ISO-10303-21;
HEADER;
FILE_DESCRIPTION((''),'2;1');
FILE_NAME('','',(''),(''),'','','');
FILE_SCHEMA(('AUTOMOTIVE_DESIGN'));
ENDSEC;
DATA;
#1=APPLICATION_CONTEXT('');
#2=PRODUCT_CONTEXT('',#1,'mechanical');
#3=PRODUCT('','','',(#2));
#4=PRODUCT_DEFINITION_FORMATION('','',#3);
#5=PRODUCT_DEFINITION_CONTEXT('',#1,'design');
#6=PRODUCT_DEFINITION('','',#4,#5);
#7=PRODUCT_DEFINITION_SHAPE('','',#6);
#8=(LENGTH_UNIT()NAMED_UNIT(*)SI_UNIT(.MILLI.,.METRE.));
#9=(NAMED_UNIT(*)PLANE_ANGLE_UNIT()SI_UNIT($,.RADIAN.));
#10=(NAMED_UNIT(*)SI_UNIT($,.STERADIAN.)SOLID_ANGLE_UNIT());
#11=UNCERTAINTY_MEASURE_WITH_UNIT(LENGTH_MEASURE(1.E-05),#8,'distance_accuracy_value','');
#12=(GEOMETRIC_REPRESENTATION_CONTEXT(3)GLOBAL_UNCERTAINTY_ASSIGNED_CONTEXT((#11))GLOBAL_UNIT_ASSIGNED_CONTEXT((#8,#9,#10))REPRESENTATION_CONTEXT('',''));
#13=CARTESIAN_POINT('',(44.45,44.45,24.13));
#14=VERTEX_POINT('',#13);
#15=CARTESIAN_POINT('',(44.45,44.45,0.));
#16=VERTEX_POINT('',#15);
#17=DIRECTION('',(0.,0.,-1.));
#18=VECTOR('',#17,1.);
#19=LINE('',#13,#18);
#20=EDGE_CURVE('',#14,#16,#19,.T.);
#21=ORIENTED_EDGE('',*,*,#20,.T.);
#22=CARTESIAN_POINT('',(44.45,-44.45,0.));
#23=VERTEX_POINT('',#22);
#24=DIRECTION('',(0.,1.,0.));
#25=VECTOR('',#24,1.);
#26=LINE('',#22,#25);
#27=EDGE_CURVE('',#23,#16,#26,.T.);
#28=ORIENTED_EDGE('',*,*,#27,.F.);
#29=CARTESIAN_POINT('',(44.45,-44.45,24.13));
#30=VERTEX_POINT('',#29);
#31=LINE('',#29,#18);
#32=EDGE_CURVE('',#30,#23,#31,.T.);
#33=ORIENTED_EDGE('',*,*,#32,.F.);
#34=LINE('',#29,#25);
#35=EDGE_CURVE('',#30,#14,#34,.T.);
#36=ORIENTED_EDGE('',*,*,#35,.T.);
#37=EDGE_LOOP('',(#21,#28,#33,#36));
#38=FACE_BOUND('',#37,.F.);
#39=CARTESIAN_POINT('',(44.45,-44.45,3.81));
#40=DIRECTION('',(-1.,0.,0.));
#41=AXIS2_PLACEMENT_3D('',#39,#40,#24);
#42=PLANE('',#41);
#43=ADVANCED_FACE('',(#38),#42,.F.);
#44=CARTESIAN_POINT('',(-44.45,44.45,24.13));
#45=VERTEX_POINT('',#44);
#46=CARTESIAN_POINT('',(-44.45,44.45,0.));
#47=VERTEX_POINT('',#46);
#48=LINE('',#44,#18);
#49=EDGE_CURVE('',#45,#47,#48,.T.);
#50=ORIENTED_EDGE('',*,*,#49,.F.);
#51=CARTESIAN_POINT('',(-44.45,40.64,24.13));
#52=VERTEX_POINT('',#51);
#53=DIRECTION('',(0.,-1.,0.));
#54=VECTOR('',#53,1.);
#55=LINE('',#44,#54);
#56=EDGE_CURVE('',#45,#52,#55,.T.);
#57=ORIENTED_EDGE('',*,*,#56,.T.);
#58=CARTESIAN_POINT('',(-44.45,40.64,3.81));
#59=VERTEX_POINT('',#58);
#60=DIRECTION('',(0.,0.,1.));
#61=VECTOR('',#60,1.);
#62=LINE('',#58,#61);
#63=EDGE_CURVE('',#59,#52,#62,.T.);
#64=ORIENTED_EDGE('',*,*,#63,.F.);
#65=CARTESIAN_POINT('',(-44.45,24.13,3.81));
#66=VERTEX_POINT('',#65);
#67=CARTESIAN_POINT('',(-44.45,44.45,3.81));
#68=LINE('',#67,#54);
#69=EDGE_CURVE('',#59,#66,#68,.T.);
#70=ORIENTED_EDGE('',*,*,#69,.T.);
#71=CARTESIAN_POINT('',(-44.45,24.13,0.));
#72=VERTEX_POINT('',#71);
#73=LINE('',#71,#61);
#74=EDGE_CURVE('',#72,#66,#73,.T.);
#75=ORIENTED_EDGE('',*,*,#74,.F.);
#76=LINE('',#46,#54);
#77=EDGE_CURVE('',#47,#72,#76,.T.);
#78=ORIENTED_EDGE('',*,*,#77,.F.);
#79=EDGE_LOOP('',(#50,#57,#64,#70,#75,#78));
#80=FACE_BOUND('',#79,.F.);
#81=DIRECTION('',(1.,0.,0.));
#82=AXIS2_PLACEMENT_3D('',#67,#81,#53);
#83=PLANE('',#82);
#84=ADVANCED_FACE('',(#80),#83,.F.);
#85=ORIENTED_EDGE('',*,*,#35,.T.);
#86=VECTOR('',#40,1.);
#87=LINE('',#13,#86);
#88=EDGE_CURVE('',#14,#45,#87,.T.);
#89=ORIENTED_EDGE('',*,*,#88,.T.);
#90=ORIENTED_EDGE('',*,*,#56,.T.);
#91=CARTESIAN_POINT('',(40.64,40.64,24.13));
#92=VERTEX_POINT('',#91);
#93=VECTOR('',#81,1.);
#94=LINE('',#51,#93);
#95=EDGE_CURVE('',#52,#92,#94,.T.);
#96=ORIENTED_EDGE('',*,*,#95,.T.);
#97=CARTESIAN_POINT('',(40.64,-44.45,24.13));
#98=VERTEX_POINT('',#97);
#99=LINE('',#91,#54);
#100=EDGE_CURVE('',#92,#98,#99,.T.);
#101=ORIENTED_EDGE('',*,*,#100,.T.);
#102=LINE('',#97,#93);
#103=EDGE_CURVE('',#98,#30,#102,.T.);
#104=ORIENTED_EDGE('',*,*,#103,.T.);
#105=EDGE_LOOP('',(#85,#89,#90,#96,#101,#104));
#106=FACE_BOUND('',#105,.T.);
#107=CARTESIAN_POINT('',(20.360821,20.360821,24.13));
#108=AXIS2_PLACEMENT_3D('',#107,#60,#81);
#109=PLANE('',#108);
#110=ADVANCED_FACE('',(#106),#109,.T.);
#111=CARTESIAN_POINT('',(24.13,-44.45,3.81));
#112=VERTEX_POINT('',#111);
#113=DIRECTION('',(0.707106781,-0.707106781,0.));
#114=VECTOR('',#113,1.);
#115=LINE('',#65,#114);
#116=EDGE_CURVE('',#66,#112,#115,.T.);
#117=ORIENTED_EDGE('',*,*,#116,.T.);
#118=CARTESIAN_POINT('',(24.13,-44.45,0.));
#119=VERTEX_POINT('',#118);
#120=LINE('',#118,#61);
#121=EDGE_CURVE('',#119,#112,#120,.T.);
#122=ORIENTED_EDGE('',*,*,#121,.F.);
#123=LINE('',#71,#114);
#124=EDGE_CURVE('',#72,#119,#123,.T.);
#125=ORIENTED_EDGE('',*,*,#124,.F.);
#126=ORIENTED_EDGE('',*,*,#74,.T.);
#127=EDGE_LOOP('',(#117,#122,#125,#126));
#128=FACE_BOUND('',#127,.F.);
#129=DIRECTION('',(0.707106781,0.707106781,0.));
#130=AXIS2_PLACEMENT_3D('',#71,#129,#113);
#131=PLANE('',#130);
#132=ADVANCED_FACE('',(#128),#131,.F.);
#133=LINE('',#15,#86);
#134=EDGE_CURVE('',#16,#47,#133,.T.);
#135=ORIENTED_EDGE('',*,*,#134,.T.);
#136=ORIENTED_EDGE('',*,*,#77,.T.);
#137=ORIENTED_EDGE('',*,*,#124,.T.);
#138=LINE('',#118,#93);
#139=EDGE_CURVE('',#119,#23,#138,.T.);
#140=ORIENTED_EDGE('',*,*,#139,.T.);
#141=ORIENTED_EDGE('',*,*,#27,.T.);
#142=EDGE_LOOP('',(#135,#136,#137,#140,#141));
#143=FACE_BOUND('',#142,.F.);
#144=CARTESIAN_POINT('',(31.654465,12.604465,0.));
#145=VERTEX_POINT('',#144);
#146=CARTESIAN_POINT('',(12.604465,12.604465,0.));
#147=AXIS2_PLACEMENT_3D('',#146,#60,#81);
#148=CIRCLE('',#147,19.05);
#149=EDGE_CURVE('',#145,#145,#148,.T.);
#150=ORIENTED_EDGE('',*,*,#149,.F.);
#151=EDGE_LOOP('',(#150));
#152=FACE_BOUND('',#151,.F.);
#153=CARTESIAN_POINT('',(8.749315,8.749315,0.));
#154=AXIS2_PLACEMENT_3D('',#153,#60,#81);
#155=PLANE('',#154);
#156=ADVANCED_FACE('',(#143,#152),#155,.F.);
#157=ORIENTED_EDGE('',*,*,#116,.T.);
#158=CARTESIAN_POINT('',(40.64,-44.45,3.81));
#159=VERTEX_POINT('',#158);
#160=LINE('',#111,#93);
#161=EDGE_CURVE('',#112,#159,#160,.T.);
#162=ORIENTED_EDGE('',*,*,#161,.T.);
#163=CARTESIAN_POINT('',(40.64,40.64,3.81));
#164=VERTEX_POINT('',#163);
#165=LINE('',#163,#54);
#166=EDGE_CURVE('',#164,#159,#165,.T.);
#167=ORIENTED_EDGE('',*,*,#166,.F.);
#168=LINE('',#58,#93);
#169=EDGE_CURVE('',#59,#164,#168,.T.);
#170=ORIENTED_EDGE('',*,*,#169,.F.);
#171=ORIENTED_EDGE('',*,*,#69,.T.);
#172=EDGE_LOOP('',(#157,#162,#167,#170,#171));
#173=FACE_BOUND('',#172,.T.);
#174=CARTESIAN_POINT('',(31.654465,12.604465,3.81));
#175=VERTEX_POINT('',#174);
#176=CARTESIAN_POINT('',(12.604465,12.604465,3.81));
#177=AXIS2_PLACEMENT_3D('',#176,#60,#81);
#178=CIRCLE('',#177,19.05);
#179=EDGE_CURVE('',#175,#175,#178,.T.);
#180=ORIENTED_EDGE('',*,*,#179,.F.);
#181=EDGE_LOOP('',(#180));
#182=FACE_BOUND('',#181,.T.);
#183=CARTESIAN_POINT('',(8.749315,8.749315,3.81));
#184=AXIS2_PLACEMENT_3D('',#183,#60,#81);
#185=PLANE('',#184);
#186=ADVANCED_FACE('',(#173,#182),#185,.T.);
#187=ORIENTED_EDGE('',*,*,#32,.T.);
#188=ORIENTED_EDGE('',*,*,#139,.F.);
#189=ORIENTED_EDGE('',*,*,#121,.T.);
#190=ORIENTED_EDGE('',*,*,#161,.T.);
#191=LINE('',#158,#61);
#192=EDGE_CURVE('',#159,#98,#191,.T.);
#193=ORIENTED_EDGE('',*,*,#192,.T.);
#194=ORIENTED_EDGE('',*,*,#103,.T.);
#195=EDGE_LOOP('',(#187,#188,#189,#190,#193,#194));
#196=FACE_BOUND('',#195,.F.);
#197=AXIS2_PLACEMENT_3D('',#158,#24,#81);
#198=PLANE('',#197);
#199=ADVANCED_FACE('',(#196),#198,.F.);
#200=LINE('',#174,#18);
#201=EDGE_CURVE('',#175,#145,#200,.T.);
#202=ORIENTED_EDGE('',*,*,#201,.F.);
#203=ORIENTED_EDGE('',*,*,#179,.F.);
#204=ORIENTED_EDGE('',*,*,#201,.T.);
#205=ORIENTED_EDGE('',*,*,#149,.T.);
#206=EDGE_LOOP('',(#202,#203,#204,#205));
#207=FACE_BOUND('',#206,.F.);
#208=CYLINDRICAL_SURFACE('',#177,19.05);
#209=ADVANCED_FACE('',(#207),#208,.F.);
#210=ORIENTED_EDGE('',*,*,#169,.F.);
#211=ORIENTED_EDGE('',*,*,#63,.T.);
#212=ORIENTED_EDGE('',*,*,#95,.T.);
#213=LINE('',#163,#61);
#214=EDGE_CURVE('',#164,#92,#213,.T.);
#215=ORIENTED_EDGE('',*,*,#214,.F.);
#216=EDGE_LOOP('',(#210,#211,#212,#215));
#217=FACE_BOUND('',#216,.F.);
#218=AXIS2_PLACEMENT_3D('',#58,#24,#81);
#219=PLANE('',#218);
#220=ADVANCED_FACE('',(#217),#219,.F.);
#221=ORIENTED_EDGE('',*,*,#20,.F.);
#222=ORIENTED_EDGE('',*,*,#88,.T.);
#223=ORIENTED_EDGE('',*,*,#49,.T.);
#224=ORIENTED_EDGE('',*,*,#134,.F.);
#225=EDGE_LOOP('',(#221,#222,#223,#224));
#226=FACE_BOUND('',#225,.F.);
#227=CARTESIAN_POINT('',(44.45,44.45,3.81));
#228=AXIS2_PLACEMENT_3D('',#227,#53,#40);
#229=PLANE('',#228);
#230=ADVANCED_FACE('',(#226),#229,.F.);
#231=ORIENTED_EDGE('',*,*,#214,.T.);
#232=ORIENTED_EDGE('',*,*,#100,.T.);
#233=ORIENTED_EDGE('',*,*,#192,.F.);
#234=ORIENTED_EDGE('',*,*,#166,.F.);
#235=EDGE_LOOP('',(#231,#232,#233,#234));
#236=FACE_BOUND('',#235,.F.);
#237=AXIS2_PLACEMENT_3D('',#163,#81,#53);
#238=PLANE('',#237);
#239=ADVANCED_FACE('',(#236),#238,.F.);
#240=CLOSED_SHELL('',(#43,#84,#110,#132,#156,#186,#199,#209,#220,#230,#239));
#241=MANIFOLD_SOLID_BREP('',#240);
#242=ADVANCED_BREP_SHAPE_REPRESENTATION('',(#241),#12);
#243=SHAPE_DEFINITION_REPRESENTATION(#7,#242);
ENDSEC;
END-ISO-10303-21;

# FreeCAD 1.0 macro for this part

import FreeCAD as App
import Part
import Sketcher

V = App.Vector
Q = App.Units.Quantity

doc = App.newDocument("Part")
body = doc.addObject("PartDesign::Body", "Body")

sketch1 = body.newObject("Sketcher::SketchObject", "Sketch")
sketch1.AttachmentSupport = (doc.getObject("XY_Plane"), [""])
sketch1.MapMode = "FlatFace"
sketch1.addGeometry([
    Part.LineSegment(V(24, -44, 0), V(44, -44, 0)),
    Part.LineSegment(V(44, -44, 0), V(44, 44, 0)),
    Part.LineSegment(V(44, 44, 0), V(-44, 44, 0)),
    Part.LineSegment(V(-44, 44, 0), V(-44, 24, 0)),
    Part.LineSegment(V(-44, 24, 0), V(24, -44, 0)),
], False)
sketch1.addConstraint([
    Sketcher.Constraint("Coincident", 0, 2, 1, 1),
    Sketcher.Constraint("Coincident", 1, 2, 2, 1),
    Sketcher.Constraint("Coincident", 2, 2, 3, 1),
    Sketcher.Constraint("Coincident", 3, 2, 4, 1),
    Sketcher.Constraint("Coincident", 4, 2, 0, 1),
    Sketcher.Constraint("Horizontal", 0),
    Sketcher.Constraint("Vertical", 1),
    Sketcher.Constraint("Horizontal", 2),
    Sketcher.Constraint("Vertical", 3),
    Sketcher.Constraint("Symmetric", 0, 2, 2, 2, -1, 1),
    Sketcher.Constraint("Equal", 2, 1),
    Sketcher.Constraint("Equal", 0, 3),
    Sketcher.Constraint("DistanceX", 0, 1, 0, 2, Q("0.8 in")),
    Sketcher.Constraint("DistanceX", 2, 2, 2, 1, Q("3.5 in")),
])
pad1 = body.newObject("PartDesign::Pad", "Pad")
pad1.Profile = sketch1
pad1.Length = Q("0.15 in")

sketch2 = body.newObject("Sketcher::SketchObject", "Sketch001")
sketch2.AttachmentSupport = (doc.getObject("XY_Plane"), [""])
sketch2.MapMode = "FlatFace"
sketch2.AttachmentOffset = App.Placement(V(0, 0, 0.15 * 25.4), App.Rotation())
sketch2.addGeometry([
    Part.LineSegment(V(-44.5, 44.5, 0), V(-44.5, 40.6, 0)),
    Part.LineSegment(V(-44.5, 40.6, 0), V(40.6, 40.6, 0)),
    Part.LineSegment(V(40.6, 40.6, 0), V(40.6, -44.5, 0)),
    Part.LineSegment(V(40.6, -44.5, 0), V(44.5, -44.5, 0)),
    Part.LineSegment(V(44.5, -44.5, 0), V(44.5, 44.5, 0)),
    Part.LineSegment(V(44.5, 44.5, 0), V(-44.5, 44.5, 0)),
], False)
sketch2.addConstraint([
    Sketcher.Constraint("Coincident", 0, 2, 1, 1),
    Sketcher.Constraint("Coincident", 1, 2, 2, 1),
    Sketcher.Constraint("Coincident", 2, 2, 3, 1),
    Sketcher.Constraint("Coincident", 3, 2, 4, 1),
    Sketcher.Constraint("Coincident", 4, 2, 5, 1),
    Sketcher.Constraint("Coincident", 5, 2, 0, 1),
    Sketcher.Constraint("Vertical", 0),
    Sketcher.Constraint("Horizontal", 1),
    Sketcher.Constraint("Vertical", 2),
    Sketcher.Constraint("Horizontal", 3),
    Sketcher.Constraint("Vertical", 4),
    Sketcher.Constraint("Horizontal", 5),
    Sketcher.Constraint("Symmetric", 3, 2, 5, 2, -1, 1),
    Sketcher.Constraint("Equal", 3, 0),
    Sketcher.Constraint("Equal", 1, 2),
    Sketcher.Constraint("DistanceX", 5, 2, 5, 1, Q("3.5 in")),
    Sketcher.Constraint("DistanceX", 1, 1, 1, 2, Q("3.35 in")),
])
pad2 = body.newObject("PartDesign::Pad", "Pad001")
pad2.Profile = sketch2
pad2.Length = Q("0.8 in")

sketch3 = body.newObject("Sketcher::SketchObject", "Sketch002")
sketch3.AttachmentSupport = (doc.getObject("XY_Plane"), [""])
sketch3.MapMode = "FlatFace"
sketch3.AttachmentOffset = App.Placement(V(0, 0, 0.15 * 25.4), App.Rotation())
sketch3.addGeometry(Part.Circle(V(13, 13, 0), V(0, 0, 1), 19), False)
sketch3.addConstraint([
    Sketcher.Constraint("Diameter", 0, Q("1.5 in")),
    Sketcher.Constraint("DistanceX", -1, 1, 0, 3, Q("12.604465 mm")),
    Sketcher.Constraint("DistanceY", -1, 1, 0, 3, Q("12.604465 mm")),
])
pocket1 = body.newObject("PartDesign::Pocket", "Pocket")
pocket1.Profile = sketch3
pocket1.Length = Q("1.56 in")

doc.recompute()
